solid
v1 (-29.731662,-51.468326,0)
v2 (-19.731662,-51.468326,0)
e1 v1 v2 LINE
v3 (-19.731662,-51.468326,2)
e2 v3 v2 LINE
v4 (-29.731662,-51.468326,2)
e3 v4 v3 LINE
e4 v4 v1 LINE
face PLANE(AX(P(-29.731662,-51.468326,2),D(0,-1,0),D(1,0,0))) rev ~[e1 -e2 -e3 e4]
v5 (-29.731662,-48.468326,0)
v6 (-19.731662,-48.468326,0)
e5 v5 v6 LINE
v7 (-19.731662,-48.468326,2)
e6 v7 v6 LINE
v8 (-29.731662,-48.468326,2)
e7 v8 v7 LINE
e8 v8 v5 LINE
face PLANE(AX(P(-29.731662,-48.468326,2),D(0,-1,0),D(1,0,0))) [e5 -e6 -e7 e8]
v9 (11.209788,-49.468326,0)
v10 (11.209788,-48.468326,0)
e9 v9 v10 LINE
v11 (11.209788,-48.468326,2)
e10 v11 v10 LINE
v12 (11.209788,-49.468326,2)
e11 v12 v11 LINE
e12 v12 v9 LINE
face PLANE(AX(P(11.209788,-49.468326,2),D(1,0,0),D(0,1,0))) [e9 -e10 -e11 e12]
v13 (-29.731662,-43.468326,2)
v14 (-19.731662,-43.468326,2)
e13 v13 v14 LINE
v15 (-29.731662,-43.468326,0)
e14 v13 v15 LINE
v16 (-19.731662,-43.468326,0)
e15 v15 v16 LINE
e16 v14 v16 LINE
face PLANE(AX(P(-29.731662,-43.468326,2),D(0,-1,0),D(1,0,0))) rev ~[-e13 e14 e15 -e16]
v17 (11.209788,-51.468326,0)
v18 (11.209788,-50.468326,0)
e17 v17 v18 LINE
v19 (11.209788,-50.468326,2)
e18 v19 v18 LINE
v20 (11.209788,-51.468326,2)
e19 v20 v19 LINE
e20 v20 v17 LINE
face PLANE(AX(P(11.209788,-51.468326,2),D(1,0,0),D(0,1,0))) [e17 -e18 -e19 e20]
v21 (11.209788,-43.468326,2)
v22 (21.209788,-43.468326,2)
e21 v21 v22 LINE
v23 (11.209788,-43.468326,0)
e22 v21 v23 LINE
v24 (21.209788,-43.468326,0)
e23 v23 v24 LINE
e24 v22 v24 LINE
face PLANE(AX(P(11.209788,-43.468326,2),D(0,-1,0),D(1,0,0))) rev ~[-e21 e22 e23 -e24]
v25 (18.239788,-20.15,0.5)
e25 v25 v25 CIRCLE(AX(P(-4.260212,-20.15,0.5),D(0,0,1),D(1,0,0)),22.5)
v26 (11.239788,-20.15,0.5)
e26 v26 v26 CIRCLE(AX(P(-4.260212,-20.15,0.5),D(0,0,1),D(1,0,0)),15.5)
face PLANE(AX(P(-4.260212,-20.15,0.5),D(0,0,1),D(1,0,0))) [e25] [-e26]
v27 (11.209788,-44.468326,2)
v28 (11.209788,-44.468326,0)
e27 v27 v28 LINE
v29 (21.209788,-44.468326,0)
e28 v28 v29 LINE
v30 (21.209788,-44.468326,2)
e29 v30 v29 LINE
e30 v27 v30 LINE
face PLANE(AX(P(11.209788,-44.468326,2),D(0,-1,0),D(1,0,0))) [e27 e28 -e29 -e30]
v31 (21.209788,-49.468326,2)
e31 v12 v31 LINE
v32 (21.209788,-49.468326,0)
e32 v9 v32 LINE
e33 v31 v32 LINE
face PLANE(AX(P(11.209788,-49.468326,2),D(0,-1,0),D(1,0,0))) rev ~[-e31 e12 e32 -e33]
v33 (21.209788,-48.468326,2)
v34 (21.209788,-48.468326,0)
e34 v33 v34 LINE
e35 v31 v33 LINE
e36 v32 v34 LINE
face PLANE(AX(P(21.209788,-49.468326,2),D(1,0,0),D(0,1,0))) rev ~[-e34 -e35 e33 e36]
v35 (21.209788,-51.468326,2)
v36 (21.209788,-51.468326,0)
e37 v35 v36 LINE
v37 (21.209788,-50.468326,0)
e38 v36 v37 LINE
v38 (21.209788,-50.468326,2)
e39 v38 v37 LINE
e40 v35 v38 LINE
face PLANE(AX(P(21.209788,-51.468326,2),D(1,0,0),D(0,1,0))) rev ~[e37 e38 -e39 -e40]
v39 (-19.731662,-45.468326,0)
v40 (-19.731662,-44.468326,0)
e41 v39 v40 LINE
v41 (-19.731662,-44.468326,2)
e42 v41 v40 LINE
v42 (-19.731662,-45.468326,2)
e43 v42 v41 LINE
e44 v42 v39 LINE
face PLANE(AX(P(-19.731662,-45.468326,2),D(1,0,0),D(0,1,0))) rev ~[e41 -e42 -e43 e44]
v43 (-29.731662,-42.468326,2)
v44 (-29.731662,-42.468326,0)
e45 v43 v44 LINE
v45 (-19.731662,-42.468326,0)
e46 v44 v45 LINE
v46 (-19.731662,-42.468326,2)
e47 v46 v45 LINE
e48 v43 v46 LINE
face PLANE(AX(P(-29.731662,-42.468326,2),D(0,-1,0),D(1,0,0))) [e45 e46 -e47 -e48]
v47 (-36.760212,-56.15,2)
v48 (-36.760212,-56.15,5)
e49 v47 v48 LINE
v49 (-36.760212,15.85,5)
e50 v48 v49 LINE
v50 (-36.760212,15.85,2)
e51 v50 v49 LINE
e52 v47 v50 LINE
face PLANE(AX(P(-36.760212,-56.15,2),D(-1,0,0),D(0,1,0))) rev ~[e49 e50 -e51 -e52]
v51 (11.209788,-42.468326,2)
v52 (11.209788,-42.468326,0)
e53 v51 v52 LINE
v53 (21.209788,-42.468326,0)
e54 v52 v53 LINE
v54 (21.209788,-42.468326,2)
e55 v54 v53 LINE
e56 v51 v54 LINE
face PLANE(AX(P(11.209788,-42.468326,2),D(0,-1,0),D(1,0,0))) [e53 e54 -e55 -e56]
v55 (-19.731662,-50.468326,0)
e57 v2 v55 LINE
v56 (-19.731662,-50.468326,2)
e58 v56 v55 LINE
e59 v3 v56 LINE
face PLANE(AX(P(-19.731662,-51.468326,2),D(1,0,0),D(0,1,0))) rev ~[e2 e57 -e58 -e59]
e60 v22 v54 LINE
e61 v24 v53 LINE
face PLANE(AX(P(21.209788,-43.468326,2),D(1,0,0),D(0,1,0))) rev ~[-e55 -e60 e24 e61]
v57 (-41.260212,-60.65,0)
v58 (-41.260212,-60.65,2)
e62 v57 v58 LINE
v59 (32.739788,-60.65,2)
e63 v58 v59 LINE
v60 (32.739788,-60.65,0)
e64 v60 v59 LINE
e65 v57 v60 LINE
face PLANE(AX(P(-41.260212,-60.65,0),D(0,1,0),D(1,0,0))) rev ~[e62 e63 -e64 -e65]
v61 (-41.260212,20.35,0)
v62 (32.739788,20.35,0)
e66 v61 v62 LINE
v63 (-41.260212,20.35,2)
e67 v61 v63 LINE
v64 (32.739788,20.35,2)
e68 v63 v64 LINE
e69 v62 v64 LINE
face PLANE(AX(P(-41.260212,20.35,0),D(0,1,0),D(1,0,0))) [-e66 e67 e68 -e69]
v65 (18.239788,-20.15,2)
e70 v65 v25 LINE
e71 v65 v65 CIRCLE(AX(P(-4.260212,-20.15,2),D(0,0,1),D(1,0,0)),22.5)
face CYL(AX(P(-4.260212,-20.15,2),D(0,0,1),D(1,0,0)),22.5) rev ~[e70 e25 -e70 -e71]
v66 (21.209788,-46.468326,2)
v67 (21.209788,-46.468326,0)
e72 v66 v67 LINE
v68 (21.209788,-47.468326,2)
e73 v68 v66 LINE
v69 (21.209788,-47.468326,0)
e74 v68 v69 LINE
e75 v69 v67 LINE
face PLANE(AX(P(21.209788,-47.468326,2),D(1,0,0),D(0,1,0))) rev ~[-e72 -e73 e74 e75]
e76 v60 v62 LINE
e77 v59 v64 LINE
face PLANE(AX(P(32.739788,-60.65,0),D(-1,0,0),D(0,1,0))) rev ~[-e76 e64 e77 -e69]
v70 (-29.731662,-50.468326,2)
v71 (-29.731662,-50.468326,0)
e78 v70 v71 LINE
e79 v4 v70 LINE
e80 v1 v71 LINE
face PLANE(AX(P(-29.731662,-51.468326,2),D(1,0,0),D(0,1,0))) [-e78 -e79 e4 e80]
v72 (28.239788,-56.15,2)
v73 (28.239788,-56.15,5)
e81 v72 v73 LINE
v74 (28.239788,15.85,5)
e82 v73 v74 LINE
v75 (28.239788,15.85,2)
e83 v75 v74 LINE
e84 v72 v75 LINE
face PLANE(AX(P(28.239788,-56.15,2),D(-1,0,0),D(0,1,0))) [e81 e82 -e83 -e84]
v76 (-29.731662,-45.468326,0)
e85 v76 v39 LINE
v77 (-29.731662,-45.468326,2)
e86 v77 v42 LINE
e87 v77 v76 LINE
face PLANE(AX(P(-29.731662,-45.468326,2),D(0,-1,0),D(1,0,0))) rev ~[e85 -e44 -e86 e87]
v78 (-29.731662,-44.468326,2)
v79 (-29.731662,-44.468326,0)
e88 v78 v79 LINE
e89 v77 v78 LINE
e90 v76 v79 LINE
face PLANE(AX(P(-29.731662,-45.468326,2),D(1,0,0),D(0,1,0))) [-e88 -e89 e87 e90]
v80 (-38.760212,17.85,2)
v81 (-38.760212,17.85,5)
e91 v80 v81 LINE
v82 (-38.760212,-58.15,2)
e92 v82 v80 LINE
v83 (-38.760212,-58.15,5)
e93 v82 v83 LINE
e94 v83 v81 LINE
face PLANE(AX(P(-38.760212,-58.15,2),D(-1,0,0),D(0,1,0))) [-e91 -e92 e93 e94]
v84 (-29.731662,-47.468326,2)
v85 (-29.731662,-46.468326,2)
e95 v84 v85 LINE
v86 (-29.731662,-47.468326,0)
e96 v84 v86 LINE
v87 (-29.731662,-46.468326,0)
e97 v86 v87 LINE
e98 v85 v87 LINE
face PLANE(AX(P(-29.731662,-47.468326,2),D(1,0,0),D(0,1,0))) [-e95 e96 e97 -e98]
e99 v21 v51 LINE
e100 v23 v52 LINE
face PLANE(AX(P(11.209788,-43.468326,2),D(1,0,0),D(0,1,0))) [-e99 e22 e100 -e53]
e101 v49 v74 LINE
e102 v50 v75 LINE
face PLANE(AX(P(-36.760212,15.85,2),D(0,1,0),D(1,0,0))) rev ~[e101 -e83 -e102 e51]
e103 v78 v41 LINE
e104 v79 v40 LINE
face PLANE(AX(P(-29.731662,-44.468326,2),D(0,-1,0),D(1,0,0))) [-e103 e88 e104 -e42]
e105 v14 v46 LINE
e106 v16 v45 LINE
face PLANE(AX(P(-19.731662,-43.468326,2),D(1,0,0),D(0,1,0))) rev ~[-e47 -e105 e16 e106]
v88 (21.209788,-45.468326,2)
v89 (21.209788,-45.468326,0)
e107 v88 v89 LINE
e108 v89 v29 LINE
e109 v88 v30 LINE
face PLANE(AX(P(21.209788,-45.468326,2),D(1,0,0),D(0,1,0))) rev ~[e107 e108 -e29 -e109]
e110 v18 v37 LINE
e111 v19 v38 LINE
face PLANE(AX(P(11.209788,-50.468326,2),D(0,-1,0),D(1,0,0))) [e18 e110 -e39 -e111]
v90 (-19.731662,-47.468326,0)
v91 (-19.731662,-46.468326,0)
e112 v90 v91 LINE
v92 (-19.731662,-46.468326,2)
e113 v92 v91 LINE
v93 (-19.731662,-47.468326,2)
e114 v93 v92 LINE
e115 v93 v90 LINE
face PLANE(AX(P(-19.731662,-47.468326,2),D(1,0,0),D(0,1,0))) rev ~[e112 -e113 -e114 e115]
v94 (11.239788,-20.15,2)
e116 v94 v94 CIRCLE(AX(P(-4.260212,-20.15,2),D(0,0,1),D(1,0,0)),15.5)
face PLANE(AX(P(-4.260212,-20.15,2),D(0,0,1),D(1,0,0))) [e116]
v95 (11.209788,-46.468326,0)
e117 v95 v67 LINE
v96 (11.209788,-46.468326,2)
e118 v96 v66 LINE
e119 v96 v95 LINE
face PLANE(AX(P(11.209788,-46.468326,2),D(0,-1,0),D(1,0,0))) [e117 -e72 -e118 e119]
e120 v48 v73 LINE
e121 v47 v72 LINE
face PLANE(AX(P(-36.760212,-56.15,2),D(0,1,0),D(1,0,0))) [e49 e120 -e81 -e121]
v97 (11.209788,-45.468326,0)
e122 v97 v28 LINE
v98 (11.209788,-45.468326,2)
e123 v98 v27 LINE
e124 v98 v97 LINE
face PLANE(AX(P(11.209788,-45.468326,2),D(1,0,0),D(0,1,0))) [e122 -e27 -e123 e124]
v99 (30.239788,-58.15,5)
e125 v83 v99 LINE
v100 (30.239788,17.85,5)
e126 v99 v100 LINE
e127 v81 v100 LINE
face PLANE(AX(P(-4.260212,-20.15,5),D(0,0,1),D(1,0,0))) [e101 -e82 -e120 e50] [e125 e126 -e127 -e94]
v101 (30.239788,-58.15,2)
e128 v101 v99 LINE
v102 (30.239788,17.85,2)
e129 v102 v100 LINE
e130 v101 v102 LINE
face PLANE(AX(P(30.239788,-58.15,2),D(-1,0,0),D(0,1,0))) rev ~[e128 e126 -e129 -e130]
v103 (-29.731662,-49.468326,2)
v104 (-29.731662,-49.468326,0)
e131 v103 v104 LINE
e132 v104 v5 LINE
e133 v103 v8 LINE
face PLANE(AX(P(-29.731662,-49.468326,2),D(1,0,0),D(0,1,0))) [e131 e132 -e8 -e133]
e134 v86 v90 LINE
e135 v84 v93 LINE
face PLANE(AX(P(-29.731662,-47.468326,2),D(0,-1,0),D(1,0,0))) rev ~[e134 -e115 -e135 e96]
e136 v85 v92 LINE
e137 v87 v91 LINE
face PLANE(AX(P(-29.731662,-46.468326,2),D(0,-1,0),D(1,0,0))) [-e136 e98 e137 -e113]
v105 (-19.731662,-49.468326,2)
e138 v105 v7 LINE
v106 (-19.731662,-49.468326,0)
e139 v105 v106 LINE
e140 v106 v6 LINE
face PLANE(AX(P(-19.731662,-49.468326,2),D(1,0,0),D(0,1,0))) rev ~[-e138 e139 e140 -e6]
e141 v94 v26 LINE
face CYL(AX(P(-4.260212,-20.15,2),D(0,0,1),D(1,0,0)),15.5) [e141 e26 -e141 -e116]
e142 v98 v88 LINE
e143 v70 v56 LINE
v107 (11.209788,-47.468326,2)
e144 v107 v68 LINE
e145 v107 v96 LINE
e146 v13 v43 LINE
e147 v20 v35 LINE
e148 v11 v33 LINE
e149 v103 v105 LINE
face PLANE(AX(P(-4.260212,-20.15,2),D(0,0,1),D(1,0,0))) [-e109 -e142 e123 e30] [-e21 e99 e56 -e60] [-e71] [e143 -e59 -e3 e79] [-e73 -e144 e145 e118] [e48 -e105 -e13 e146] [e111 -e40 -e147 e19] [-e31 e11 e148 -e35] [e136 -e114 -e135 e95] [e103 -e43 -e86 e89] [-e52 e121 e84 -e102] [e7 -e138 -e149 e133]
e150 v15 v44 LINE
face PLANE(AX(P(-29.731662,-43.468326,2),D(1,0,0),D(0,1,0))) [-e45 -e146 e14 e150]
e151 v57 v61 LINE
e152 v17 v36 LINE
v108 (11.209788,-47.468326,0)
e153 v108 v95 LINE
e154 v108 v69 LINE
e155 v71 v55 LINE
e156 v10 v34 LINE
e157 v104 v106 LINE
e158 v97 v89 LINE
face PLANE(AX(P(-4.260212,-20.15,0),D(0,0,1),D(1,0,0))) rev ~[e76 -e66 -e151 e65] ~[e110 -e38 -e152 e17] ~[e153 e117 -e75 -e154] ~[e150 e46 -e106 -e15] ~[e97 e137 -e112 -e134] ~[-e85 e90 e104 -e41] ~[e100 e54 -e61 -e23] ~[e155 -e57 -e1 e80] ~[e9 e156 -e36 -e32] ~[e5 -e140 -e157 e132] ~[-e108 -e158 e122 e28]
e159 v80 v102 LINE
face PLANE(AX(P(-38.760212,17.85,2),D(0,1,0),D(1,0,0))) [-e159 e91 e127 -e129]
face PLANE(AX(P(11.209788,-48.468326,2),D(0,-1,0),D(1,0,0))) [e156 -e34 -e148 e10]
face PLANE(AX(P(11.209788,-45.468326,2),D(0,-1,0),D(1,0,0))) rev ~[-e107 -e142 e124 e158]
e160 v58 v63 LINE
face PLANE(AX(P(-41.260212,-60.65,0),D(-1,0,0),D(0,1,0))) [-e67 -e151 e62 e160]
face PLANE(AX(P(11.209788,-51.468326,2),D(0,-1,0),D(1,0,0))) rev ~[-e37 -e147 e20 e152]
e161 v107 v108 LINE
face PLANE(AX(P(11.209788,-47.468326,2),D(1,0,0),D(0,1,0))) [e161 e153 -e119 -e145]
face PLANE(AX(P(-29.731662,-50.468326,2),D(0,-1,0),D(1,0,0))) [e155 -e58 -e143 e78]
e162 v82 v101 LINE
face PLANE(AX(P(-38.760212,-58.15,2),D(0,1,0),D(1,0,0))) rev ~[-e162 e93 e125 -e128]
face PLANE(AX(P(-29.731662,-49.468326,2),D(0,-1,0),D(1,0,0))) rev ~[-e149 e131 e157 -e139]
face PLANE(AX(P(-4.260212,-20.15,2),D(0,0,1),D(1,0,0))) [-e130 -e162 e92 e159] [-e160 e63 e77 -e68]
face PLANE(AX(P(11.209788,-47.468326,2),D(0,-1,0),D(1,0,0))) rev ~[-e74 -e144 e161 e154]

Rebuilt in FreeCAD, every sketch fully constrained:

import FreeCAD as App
import Part
import Sketcher
from FreeCAD import Vector
Q = App.Units.Quantity


def add_polygon(sketch, points):
    """Adds a closed chain of lines whose ends are joined by coincident constraints."""
    first, n = sketch.GeometryCount, len(points)
    for a, b in zip(points, points[1:] + points[:1]):
        sketch.addGeometry(Part.LineSegment(App.Vector(*a, 0), App.Vector(*b, 0)), False)
    for i in range(n):
        sketch.addConstraint(Sketcher.Constraint("Coincident", first + i, 2, first + (i + 1) % n, 1))

doc = App.newDocument("Part")
body = doc.addObject("PartDesign::Body", "Body")

# Sketch on XY plane
sketch1 = doc.addObject("Sketcher::SketchObject", "Sketch")
body.addObject(sketch1)
sketch1.AttachmentSupport = (doc.XY_Plane, [""])
sketch1.MapMode = "FlatFace"
add_polygon(sketch1, [(-41, 20), (-41, -61), (33, -61), (33, 20)])  # lines 0-3
sketch1.addConstraint([
    Sketcher.Constraint("Vertical", 0),
    Sketcher.Constraint("Horizontal", 1),
    Sketcher.Constraint("Vertical", 2),
    Sketcher.Constraint("Horizontal", 3),
    Sketcher.Constraint("DistanceX", 1, 1, 1, 2, Q("74 mm")),
    Sketcher.Constraint("DistanceY", 0, 2, 0, 1, Q("81 mm")),
    Sketcher.Constraint("DistanceY", 0, 2, -1, 1, Q("60.65 mm")),
    Sketcher.Constraint("DistanceX", 0, 2, -1, 1, Q("41.260212 mm")),
])
pad1 = doc.addObject("PartDesign::Pad", "Pad")
body.addObject(pad1)
pad1.Profile = sketch1
pad1.Length = 2

# Sketch on XY plane
sketch2 = doc.addObject("Sketcher::SketchObject", "Sketch001")
body.addObject(sketch2)
sketch2.AttachmentSupport = (doc.XY_Plane, [""])
sketch2.MapMode = "FlatFace"
sketch2.AttachmentOffset = App.Placement(Vector(0, 0, 2), App.Rotation())
add_polygon(sketch2, [(-39, 18), (-39, -58), (30, -58), (30, 18)])  # lines 0-3
add_polygon(sketch2, [(28, -56), (-37, -56), (-37, 16), (28, 16)])  # lines 4-7
sketch2.addConstraint([
    Sketcher.Constraint("Vertical", 0),
    Sketcher.Constraint("Horizontal", 1),
    Sketcher.Constraint("Vertical", 2),
    Sketcher.Constraint("Horizontal", 3),
    Sketcher.Constraint("Horizontal", 4),
    Sketcher.Constraint("Vertical", 5),
    Sketcher.Constraint("Horizontal", 6),
    Sketcher.Constraint("Vertical", 7),
    Sketcher.Constraint("DistanceX", 1, 1, 1, 2, Q("69 mm")),
    Sketcher.Constraint("DistanceX", 4, 2, 4, 1, Q("65 mm")),
    Sketcher.Constraint("DistanceY", 0, 2, 0, 1, Q("76 mm")),
    Sketcher.Constraint("DistanceY", 5, 1, 5, 2, Q("72 mm")),
    Sketcher.Constraint("DistanceX", 0, 2, 4, 2, Q("2 mm")),
    Sketcher.Constraint("DistanceY", 0, 2, 4, 2, Q("2 mm")),
    Sketcher.Constraint("DistanceY", 0, 2, -1, 1, Q("58.15 mm")),
    Sketcher.Constraint("DistanceX", 0, 2, -1, 1, Q("38.760212 mm")),
])
pad2 = doc.addObject("PartDesign::Pad", "Pad001")
body.addObject(pad2)
pad2.Profile = sketch2
pad2.Length = 3

# Sketch on XY plane
sketch3 = doc.addObject("Sketcher::SketchObject", "Sketch002")
body.addObject(sketch3)
sketch3.AttachmentSupport = (doc.XY_Plane, [""])
sketch3.MapMode = "FlatFace"
sketch3.AttachmentOffset = App.Placement(Vector(0, 0, 2), App.Rotation())
sketch3.addGeometry([
    Part.Circle(Vector(-4, -20, 0), Vector(0, 0, 1), 22),
    Part.Circle(Vector(-4, -20, 0), Vector(0, 0, 1), 16),
], False)
sketch3.addConstraint([
    Sketcher.Constraint("Coincident", 1, 3, 0, 3),
    Sketcher.Constraint("Diameter", 0, Q("45 mm")),
    Sketcher.Constraint("Diameter", 1, Q("31 mm")),
    Sketcher.Constraint("DistanceY", 0, 3, -1, 1, Q("20.15 mm")),
    Sketcher.Constraint("DistanceX", 0, 3, -1, 1, Q("4.260212 mm")),
])
pocket1 = doc.addObject("PartDesign::Pocket", "Pocket")
body.addObject(pocket1)
pocket1.Profile = sketch3
pocket1.Length = 1.5

# Sketch on XY plane
sketch4 = doc.addObject("Sketcher::SketchObject", "Sketch003")
body.addObject(sketch4)
sketch4.AttachmentSupport = (doc.XY_Plane, [""])
sketch4.MapMode = "FlatFace"
sketch4.AttachmentOffset = App.Placement(Vector(0, 0, 2), App.Rotation())
add_polygon(sketch4, [(-29.7, -48.5), (-29.7, -49.5), (-19.7, -49.5), (-19.7, -48.5)])  # lines 0-3
add_polygon(sketch4, [(-29.7, -50.5), (-29.7, -51.5), (-19.7, -51.5), (-19.7, -50.5)])  # lines 4-7
add_polygon(sketch4, [(-29.7, -46.5), (-29.7, -47.5), (-19.7, -47.5), (-19.7, -46.5)])  # lines 8-11
add_polygon(sketch4, [(-29.7, -44.5), (-29.7, -45.5), (-19.7, -45.5), (-19.7, -44.5)])  # lines 12-15
add_polygon(sketch4, [(-29.7, -42.5), (-29.7, -43.5), (-19.7, -43.5), (-19.7, -42.5)])  # lines 16-19
sketch4.addConstraint([
    Sketcher.Constraint("Vertical", 0),
    Sketcher.Constraint("Horizontal", 1),
    Sketcher.Constraint("Vertical", 2),
    Sketcher.Constraint("Horizontal", 3),
    Sketcher.Constraint("Vertical", 4),
    Sketcher.Constraint("Horizontal", 5),
    Sketcher.Constraint("Vertical", 6),
    Sketcher.Constraint("Horizontal", 7),
    Sketcher.Constraint("Vertical", 8),
    Sketcher.Constraint("Horizontal", 9),
    Sketcher.Constraint("Vertical", 10),
    Sketcher.Constraint("Horizontal", 11),
    Sketcher.Constraint("Vertical", 12),
    Sketcher.Constraint("Horizontal", 13),
    Sketcher.Constraint("Vertical", 14),
    Sketcher.Constraint("Horizontal", 15),
    Sketcher.Constraint("Vertical", 16),
    Sketcher.Constraint("Horizontal", 17),
    Sketcher.Constraint("Vertical", 18),
    Sketcher.Constraint("Horizontal", 19),
    Sketcher.Constraint("Vertical", 3, 2, 4, 2),
    Sketcher.Constraint("Vertical", 2, 2, 5, 2),
    Sketcher.Constraint("Vertical", 7, 2, 8, 2),
    Sketcher.Constraint("Vertical", 6, 2, 9, 2),
    Sketcher.Constraint("Vertical", 11, 2, 12, 2),
    Sketcher.Constraint("Vertical", 10, 2, 13, 2),
    Sketcher.Constraint("Vertical", 15, 2, 16, 2),
    Sketcher.Constraint("Vertical", 14, 2, 17, 2),
    Sketcher.Constraint("Equal", 2, 4),
    Sketcher.Constraint("Equal", 6, 8),
    Sketcher.Constraint("Equal", 10, 12),
    Sketcher.Constraint("Equal", 14, 16),
    Sketcher.Constraint("DistanceX", 1, 1, 1, 2, Q("10 mm")),
    Sketcher.Constraint("DistanceY", 0, 2, 0, 1, Q("1 mm")),
    Sketcher.Constraint("DistanceY", 4, 2, 0, 2, Q("2 mm")),
    Sketcher.Constraint("DistanceY", 3, 2, 8, 2, Q("1 mm")),
    Sketcher.Constraint("DistanceY", 11, 2, 12, 2, Q("1 mm")),
    Sketcher.Constraint("DistanceY", 15, 2, 16, 2, Q("1 mm")),
    Sketcher.Constraint("DistanceX", 0, 2, -1, 1, Q("29.731662 mm")),
    Sketcher.Constraint("DistanceY", 0, 2, -1, 1, Q("49.468326 mm")),
])
pocket2 = doc.addObject("PartDesign::Pocket", "Pocket001")
body.addObject(pocket2)
pocket2.Profile = sketch4
pocket2.Type = "ThroughAll"

# Sketch on XY plane
sketch5 = doc.addObject("Sketcher::SketchObject", "Sketch004")
body.addObject(sketch5)
sketch5.AttachmentSupport = (doc.XY_Plane, [""])
sketch5.MapMode = "FlatFace"
sketch5.AttachmentOffset = App.Placement(Vector(0, 0, 2), App.Rotation())
add_polygon(sketch5, [(11.2, -50.5), (11.2, -51.5), (21.2, -51.5), (21.2, -50.5)])  # lines 0-3
add_polygon(sketch5, [(11.2, -48.5), (11.2, -49.5), (21.2, -49.5), (21.2, -48.5)])  # lines 4-7
add_polygon(sketch5, [(11.2, -46.5), (11.2, -47.5), (21.2, -47.5), (21.2, -46.5)])  # lines 8-11
add_polygon(sketch5, [(11.2, -44.5), (11.2, -45.5), (21.2, -45.5), (21.2, -44.5)])  # lines 12-15
add_polygon(sketch5, [(11.2, -42.5), (11.2, -43.5), (21.2, -43.5), (21.2, -42.5)])  # lines 16-19
sketch5.addConstraint([
    Sketcher.Constraint("Vertical", 0),
    Sketcher.Constraint("Horizontal", 1),
    Sketcher.Constraint("Vertical", 2),
    Sketcher.Constraint("Horizontal", 3),
    Sketcher.Constraint("Vertical", 4),
    Sketcher.Constraint("Horizontal", 5),
    Sketcher.Constraint("Vertical", 6),
    Sketcher.Constraint("Horizontal", 7),
    Sketcher.Constraint("Vertical", 8),
    Sketcher.Constraint("Horizontal", 9),
    Sketcher.Constraint("Vertical", 10),
    Sketcher.Constraint("Horizontal", 11),
    Sketcher.Constraint("Vertical", 12),
    Sketcher.Constraint("Horizontal", 13),
    Sketcher.Constraint("Vertical", 14),
    Sketcher.Constraint("Horizontal", 15),
    Sketcher.Constraint("Vertical", 16),
    Sketcher.Constraint("Horizontal", 17),
    Sketcher.Constraint("Vertical", 18),
    Sketcher.Constraint("Horizontal", 19),
    Sketcher.Constraint("Vertical", 3, 2, 4, 2),
    Sketcher.Constraint("Vertical", 2, 2, 5, 2),
    Sketcher.Constraint("Vertical", 7, 2, 8, 2),
    Sketcher.Constraint("Vertical", 6, 2, 9, 2),
    Sketcher.Constraint("Vertical", 11, 2, 12, 2),
    Sketcher.Constraint("Vertical", 10, 2, 13, 2),
    Sketcher.Constraint("Vertical", 15, 2, 16, 2),
    Sketcher.Constraint("Vertical", 14, 2, 17, 2),
    Sketcher.Constraint("Equal", 2, 4),
    Sketcher.Constraint("Equal", 6, 8),
    Sketcher.Constraint("Equal", 10, 12),
    Sketcher.Constraint("Equal", 14, 16),
    Sketcher.Constraint("DistanceX", 1, 1, 1, 2, Q("10 mm")),
    Sketcher.Constraint("DistanceY", 0, 2, 0, 1, Q("1 mm")),
    Sketcher.Constraint("DistanceY", 3, 2, 4, 2, Q("1 mm")),
    Sketcher.Constraint("DistanceY", 7, 2, 8, 2, Q("1 mm")),
    Sketcher.Constraint("DistanceY", 11, 2, 12, 2, Q("1 mm")),
    Sketcher.Constraint("DistanceY", 15, 2, 16, 2, Q("1 mm")),
    Sketcher.Constraint("DistanceX", -1, 1, 0, 2, Q("11.209788 mm")),
    Sketcher.Constraint("DistanceY", 0, 2, -1, 1, Q("51.468326 mm")),
])
pocket3 = doc.addObject("PartDesign::Pocket", "Pocket002")
body.addObject(pocket3)
pocket3.Profile = sketch5
pocket3.Type = "ThroughAll"

doc.recompute()
